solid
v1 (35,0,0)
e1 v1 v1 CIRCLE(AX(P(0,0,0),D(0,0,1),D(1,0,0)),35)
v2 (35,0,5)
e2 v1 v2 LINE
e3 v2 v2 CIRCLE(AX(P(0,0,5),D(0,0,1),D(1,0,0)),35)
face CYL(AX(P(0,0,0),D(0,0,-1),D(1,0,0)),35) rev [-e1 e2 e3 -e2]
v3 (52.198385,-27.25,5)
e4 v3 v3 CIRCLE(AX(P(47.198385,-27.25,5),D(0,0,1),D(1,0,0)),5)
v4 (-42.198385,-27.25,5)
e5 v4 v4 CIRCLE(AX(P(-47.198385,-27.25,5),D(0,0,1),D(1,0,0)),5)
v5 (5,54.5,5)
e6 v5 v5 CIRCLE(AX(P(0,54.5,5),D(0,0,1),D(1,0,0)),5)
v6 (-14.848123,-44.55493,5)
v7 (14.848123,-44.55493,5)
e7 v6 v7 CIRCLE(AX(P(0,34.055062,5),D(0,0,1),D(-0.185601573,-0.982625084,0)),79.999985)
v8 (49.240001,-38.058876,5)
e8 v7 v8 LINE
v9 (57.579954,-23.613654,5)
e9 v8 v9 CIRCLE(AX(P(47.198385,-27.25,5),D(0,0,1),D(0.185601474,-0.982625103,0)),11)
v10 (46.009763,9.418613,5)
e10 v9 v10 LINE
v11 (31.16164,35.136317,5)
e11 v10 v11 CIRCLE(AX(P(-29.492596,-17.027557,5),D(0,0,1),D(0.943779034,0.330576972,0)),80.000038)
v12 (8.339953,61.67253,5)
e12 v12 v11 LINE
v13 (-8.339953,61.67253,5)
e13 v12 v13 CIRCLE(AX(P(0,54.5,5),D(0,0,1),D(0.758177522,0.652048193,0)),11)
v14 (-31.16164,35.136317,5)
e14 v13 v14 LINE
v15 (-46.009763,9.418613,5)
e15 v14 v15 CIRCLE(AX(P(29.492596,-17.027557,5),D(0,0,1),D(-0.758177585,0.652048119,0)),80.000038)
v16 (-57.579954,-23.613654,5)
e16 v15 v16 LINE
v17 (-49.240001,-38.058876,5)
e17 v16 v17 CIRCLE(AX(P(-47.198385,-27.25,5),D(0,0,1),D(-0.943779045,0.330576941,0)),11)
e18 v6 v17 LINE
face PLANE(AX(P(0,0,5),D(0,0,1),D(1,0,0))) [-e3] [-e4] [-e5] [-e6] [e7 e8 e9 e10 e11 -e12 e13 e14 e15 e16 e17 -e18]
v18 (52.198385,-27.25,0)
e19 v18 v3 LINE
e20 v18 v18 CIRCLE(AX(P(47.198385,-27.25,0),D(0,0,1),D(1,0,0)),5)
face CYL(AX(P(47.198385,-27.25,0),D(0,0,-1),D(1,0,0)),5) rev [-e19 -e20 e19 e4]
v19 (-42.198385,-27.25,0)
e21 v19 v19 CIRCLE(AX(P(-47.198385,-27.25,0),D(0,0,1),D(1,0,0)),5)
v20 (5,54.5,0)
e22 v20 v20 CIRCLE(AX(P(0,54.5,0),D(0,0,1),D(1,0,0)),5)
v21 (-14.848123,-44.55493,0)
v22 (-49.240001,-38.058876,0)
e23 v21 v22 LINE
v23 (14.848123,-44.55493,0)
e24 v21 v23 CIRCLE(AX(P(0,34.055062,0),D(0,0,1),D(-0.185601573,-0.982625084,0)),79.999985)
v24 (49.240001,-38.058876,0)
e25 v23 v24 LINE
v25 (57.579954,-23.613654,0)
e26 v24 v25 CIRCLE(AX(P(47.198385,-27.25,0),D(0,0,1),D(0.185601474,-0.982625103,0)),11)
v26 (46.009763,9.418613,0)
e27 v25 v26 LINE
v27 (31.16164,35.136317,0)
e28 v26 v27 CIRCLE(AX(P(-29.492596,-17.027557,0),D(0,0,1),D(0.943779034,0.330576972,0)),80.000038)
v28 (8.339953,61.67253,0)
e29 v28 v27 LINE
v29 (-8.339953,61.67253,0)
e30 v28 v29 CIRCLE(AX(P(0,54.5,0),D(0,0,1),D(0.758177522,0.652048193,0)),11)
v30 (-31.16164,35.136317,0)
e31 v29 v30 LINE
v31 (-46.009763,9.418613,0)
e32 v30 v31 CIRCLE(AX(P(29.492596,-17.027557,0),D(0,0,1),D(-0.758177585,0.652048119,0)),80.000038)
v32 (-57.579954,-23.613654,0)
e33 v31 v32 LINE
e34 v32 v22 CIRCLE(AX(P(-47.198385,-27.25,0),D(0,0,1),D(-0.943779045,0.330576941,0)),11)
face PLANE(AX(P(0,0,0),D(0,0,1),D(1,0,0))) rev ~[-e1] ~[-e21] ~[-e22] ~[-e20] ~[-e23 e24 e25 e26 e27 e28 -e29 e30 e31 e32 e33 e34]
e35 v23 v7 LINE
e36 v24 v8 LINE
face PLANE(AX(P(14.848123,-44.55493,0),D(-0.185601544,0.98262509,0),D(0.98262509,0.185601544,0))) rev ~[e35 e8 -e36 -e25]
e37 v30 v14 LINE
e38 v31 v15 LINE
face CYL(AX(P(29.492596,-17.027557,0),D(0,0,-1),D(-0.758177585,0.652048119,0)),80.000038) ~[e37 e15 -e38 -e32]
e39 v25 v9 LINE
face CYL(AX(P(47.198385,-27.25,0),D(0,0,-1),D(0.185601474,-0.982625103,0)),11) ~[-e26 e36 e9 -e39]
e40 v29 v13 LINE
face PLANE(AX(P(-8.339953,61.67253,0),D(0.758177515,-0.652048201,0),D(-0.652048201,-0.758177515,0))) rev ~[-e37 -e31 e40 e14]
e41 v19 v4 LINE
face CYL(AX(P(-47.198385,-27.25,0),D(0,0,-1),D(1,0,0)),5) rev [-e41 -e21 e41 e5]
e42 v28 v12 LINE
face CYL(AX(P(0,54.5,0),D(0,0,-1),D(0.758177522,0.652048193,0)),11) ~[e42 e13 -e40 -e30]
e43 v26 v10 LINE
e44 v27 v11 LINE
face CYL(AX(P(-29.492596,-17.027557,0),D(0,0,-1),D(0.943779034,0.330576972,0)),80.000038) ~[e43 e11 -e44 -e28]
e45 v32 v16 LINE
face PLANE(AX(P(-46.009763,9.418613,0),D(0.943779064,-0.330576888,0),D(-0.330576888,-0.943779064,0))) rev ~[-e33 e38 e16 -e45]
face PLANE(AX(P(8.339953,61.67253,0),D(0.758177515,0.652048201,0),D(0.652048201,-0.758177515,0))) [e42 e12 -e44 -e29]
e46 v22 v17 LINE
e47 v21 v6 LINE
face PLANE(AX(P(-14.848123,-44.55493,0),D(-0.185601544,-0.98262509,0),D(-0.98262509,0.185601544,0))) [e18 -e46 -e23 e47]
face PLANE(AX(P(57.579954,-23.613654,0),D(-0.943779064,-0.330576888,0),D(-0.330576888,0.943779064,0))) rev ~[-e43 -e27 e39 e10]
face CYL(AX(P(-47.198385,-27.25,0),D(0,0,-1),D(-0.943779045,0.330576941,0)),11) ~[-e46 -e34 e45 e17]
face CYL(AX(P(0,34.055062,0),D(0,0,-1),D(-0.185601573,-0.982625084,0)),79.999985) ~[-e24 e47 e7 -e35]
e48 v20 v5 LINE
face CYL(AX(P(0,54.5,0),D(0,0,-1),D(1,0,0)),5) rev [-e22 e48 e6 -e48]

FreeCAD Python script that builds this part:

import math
import FreeCAD as App
import Part
import Sketcher

V = App.Vector
Q = App.Units.Quantity

doc = App.newDocument("Part")
params = doc.addObject("Spreadsheet::Sheet", "Params")
for row, (alias, value) in enumerate([
    ("sketch1_diameter", "10 mm"),
    ("sketch1_diameter2", "70 mm"),
    ("sketch1_radius", "11 mm"),
    ("sketch1_length", "35 mm"),
    ("pad1_length", "5 mm"),
], start=1):
    params.set(f"A{row}", alias)
    params.set(f"B{row}", "=" + value)
    params.setAlias(f"B{row}", alias)

body = doc.addObject("PartDesign::Body", "Body")

# Sketch on XY plane
sketch1 = body.newObject("Sketcher::SketchObject", "Sketch")
sketch1.AttachmentSupport = (doc.getObject("XY_Plane"), [""])
sketch1.MapMode = "FlatFace"
sketch1.addGeometry([
    Part.ArcOfCircle(Part.Circle(V(0, 54.5, 0), V(0, 0, 1), 11), math.radians(40.696205), math.radians(139.303795)),  # 0
    Part.LineSegment(V(-8.339953, 61.67253, 0), V(-31.16164, 35.136317, 0)),  # 1
    Part.ArcOfCircle(Part.Circle(V(29.492596, -17.027557, 0), V(0, 0, 1), 80.000038), math.radians(139.3038), math.radians(160.696201)),  # 2
    Part.LineSegment(V(-46.009763, 9.418613, 0), V(-57.579954, -23.613654, 0)),  # 3
    Part.ArcOfCircle(Part.Circle(V(-47.198385, -27.25, 0), V(0, 0, 1), 11), math.radians(160.696203), math.radians(259.303798)),  # 4
    Part.LineSegment(V(-49.240001, -38.058876, 0), V(-14.848123, -44.55493, 0)),  # 5
    Part.ArcOfCircle(Part.Circle(V(0, 34.055062, 0), V(0, 0, 1), 79.999985), math.radians(-100.696207), math.radians(-79.303793)),  # 6
    Part.LineSegment(V(14.848123, -44.55493, 0), V(49.240001, -38.058876, 0)),  # 7
    Part.ArcOfCircle(Part.Circle(V(47.198385, -27.25, 0), V(0, 0, 1), 11), math.radians(-79.303798), math.radians(19.303797)),  # 8
    Part.LineSegment(V(57.579954, -23.613654, 0), V(46.009763, 9.418613, 0)),  # 9
    Part.ArcOfCircle(Part.Circle(V(-29.492596, -17.027557, 0), V(0, 0, 1), 80.000038), math.radians(19.303799), math.radians(40.6962)),  # 10
    Part.LineSegment(V(31.16164, 35.136317, 0), V(8.339953, 61.67253, 0)),  # 11
    Part.Circle(V(-47.198385, -27.25, 0), V(0, 0, 1), 5),  # 12
    Part.Circle(V(47.198385, -27.25, 0), V(0, 0, 1), 5),  # 13
    Part.Circle(V(0, 0, 0), V(0, 0, 1), 35),  # 14
    Part.Circle(V(0, 54.5, 0), V(0, 0, 1), 5),  # 15
], False)
sketch1.addConstraint([
    Sketcher.Constraint("Tangent", 0, 2, 1, 1),
    Sketcher.Constraint("Tangent", 1, 2, 2, 1),
    Sketcher.Constraint("Tangent", 2, 2, 3, 1),
    Sketcher.Constraint("Tangent", 3, 2, 4, 1),
    Sketcher.Constraint("Tangent", 4, 2, 5, 1),
    Sketcher.Constraint("Tangent", 5, 2, 6, 1),
    Sketcher.Constraint("Tangent", 6, 2, 7, 1),
    Sketcher.Constraint("Tangent", 7, 2, 8, 1),
    Sketcher.Constraint("Tangent", 8, 2, 9, 1),
    Sketcher.Constraint("Tangent", 9, 2, 10, 1),
    Sketcher.Constraint("Tangent", 10, 2, 11, 1),
    Sketcher.Constraint("Tangent", 11, 2, 0, 1),
    Sketcher.Constraint("Coincident", 14, 3, -1, 1),
    Sketcher.Constraint("Coincident", 12, 3, 4, 3),
    Sketcher.Constraint("Coincident", 13, 3, 8, 3),
    Sketcher.Constraint("Coincident", 15, 3, 0, 3),
    Sketcher.Constraint("Equal", 0, 4),
    Sketcher.Constraint("Equal", 4, 8),
    Sketcher.Constraint("Equal", 2, 10),
    Sketcher.Constraint("Equal", 12, 13),
    Sketcher.Constraint("Equal", 13, 15),
    Sketcher.Constraint("Symmetric", 4, 3, 8, 3, -2),
    Sketcher.Constraint("Symmetric", 2, 3, 10, 3, -2),
    Sketcher.Constraint("PointOnObject", 0, 3, -2),
    Sketcher.Constraint("PointOnObject", 6, 3, -2),
    Sketcher.Constraint("Equal", 1, 3),
    Sketcher.Constraint("Equal", 3, 5),
    Sketcher.Constraint("Diameter", 12, Q("10 mm")),
    Sketcher.Constraint("Diameter", 14, Q("70 mm")),
    Sketcher.Constraint("Radius", 0, Q("11 mm")),
    Sketcher.Constraint("Distance", 1, Q("35 mm")),
    Sketcher.Constraint("DistanceY", -1, 1, 0, 3, Q("54.5 mm")),
    Sketcher.Constraint("DistanceY", 4, 3, -1, 1, Q("27.25 mm")),
    Sketcher.Constraint("DistanceX", 4, 2, -1, 1, Q("49.240001 mm")),
    Sketcher.Constraint("Radius", 2, Q("80.000038 mm")),
    Sketcher.Constraint("Radius", 6, Q("79.999985 mm")),
])
sketch1.setExpression("Constraints[27]", "Params.sketch1_diameter")
sketch1.setExpression("Constraints[28]", "Params.sketch1_diameter2")
sketch1.setExpression("Constraints[29]", "Params.sketch1_radius")
sketch1.setExpression("Constraints[30]", "Params.sketch1_length")
pad1 = body.newObject("PartDesign::Pad", "Pad")
pad1.Profile = sketch1
pad1.setExpression("Length", "Params.pad1_length")

doc.recompute()
